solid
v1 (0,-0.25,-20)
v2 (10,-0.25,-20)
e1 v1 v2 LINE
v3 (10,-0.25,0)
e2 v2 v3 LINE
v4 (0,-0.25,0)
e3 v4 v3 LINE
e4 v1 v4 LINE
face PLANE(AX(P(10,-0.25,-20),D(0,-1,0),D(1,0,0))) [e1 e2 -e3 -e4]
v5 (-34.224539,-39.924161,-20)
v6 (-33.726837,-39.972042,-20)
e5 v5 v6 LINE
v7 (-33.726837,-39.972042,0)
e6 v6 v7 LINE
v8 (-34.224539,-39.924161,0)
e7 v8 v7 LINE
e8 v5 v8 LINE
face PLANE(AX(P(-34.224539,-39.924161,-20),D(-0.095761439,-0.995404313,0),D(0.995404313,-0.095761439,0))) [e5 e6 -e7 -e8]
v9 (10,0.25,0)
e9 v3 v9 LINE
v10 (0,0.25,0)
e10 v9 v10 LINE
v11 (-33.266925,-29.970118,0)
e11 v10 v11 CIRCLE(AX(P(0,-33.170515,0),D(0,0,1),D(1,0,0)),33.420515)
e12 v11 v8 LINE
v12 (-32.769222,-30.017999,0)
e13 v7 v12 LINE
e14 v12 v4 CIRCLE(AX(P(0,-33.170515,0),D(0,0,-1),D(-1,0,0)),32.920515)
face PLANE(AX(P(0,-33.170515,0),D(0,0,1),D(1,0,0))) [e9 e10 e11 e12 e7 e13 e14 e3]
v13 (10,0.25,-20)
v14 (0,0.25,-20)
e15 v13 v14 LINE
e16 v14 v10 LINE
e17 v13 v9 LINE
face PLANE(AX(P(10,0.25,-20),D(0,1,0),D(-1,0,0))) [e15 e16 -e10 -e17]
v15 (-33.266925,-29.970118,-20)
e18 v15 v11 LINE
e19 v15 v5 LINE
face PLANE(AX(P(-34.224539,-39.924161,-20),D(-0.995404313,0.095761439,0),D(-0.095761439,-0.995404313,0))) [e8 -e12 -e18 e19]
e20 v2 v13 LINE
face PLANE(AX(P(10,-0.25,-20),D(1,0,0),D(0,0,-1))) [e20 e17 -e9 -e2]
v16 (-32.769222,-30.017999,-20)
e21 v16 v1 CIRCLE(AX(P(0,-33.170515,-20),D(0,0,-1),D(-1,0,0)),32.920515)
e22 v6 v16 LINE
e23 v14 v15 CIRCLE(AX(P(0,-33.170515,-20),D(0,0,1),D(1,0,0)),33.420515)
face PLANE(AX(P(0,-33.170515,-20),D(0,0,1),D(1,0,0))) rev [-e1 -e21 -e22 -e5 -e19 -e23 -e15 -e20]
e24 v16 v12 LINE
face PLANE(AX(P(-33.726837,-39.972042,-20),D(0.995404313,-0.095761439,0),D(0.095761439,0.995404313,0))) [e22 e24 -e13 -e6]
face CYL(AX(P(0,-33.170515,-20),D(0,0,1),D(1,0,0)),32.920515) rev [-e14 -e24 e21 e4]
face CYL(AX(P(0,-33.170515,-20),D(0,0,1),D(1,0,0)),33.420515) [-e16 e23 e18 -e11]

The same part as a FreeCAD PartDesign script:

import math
import FreeCAD as App
import Part
import Sketcher
from FreeCAD import Vector
Q = App.Units.Quantity

doc = App.newDocument("Part")
body = doc.addObject("PartDesign::Body", "Body")

# Sketch on XY plane
sketch1 = body.newObject("Sketcher::SketchObject", "Sketch")
sketch1.AttachmentSupport = (doc.getObject("XY_Plane"), [""])
sketch1.MapMode = "FlatFace"
sketch1.addGeometry([
    Part.LineSegment(Vector(-34.22, -39.92, 0), Vector(-33.73, -39.97, 0)),  # 0
    Part.LineSegment(Vector(-33.73, -39.97, 0), Vector(-32.77, -30.02, 0)),  # 1
    Part.ArcOfCircle(Part.Circle(Vector(0, -33.17, 0), Vector(0, 0, 1), 32.92), math.radians(90), math.radians(175)),  # 2
    Part.LineSegment(Vector(0, -0.25, 0), Vector(10, -0.25, 0)),  # 3
    Part.LineSegment(Vector(10, -0.25, 0), Vector(10, 0.25, 0)),  # 4
    Part.LineSegment(Vector(10, 0.25, 0), Vector(0, 0.25, 0)),  # 5
    Part.ArcOfCircle(Part.Circle(Vector(0, -33.17, 0), Vector(0, 0, 1), 33.42), math.radians(90), math.radians(175)),  # 6
    Part.LineSegment(Vector(-33.27, -29.97, 0), Vector(-34.22, -39.92, 0)),  # 7
], False)
sketch1.addConstraint([
    Sketcher.Constraint("Coincident", 0, 2, 1, 1),
    Sketcher.Constraint("Tangent", 1, 2, 2, 2),
    Sketcher.Constraint("Tangent", 2, 1, 3, 1),
    Sketcher.Constraint("Coincident", 3, 2, 4, 1),
    Sketcher.Constraint("Coincident", 4, 2, 5, 1),
    Sketcher.Constraint("Tangent", 5, 2, 6, 1),
    Sketcher.Constraint("Tangent", 6, 2, 7, 1),
    Sketcher.Constraint("Coincident", 7, 2, 0, 1),
    Sketcher.Constraint("Horizontal", 3),
    Sketcher.Constraint("Vertical", 4),
    Sketcher.Constraint("Horizontal", 5),
    Sketcher.Constraint("Coincident", 6, 3, 2, 3),
    Sketcher.Constraint("Symmetric", 2, 1, 5, 2, -1, 1),
    Sketcher.Constraint("Perpendicular", 0, 1),
    Sketcher.Constraint("Parallel", 1, 7),
    Sketcher.Constraint("DistanceX", 3, 1, 3, 2, Q("10 mm")),
    Sketcher.Constraint("Distance", 1, Q("10 mm")),
    Sketcher.Constraint("DistanceY", 4, 1, 4, 2, Q("0.5 mm")),
    Sketcher.Constraint("DistanceY", 1, 2, -1, 1, Q("30.017999 mm")),
    Sketcher.Constraint("Radius", 2, Q("32.920515 mm")),
])
pad1 = body.newObject("PartDesign::Pad", "Pad")
pad1.Profile = sketch1
pad1.Length = 20
pad1.Reversed = True

doc.recompute()
